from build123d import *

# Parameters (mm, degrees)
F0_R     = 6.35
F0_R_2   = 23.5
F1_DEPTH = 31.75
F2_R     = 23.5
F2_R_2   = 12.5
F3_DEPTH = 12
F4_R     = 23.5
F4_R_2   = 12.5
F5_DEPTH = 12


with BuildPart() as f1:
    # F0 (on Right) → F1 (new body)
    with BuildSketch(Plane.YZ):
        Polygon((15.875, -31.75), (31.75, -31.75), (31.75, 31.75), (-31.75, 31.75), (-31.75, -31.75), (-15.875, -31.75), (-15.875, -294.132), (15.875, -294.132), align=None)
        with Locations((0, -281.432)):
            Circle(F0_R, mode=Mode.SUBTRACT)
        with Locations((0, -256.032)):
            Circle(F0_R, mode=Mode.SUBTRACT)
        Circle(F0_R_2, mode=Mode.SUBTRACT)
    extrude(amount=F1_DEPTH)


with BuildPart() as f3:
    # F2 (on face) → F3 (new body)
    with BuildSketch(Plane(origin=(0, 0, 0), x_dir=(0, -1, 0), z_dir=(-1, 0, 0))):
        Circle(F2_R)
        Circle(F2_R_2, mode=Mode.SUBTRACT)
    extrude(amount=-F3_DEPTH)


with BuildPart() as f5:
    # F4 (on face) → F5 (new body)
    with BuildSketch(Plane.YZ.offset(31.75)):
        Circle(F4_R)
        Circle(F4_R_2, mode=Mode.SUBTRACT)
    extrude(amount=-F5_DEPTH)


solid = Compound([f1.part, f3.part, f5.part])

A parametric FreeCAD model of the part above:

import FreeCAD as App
import Part
import Sketcher
from FreeCAD import Vector
Q = App.Units.Quantity

doc = App.newDocument("Part")
body = doc.addObject("PartDesign::Body", "Body")

sketch1 = doc.addObject("Sketcher::SketchObject", "Sketch")
body.addObject(sketch1)
sketch1.AttachmentSupport = (doc.YZ_Plane, [""])
sketch1.MapMode = "FlatFace"
sketch1.addGeometry(Part.LineSegment(Vector(16, -32, 0), Vector(32, -32, 0)), False)
sketch1.addGeometry(Part.LineSegment(Vector(32, -32, 0), Vector(32, 32, 0)), False)
sketch1.addGeometry(Part.LineSegment(Vector(32, 32, 0), Vector(-32, 32, 0)), False)
sketch1.addGeometry(Part.LineSegment(Vector(-32, 32, 0), Vector(-32, -32, 0)), False)
sketch1.addGeometry(Part.LineSegment(Vector(-32, -32, 0), Vector(-16, -32, 0)), False)
sketch1.addGeometry(Part.LineSegment(Vector(-16, -32, 0), Vector(-16, -294, 0)), False)
sketch1.addGeometry(Part.LineSegment(Vector(-16, -294, 0), Vector(16, -294, 0)), False)
sketch1.addGeometry(Part.LineSegment(Vector(16, -294, 0), Vector(16, -32, 0)), False)
sketch1.addGeometry(Part.Circle(Vector(0, -281, 0), Vector(0, 0, 1), 6), False)
sketch1.addGeometry(Part.Circle(Vector(0, -256, 0), Vector(0, 0, 1), 6), False)
sketch1.addGeometry(Part.Circle(Vector(0, 0, 0), Vector(0, 0, 1), 24), False)
sketch1.addConstraint(Sketcher.Constraint("Coincident", 0, 2, 1, 1))
sketch1.addConstraint(Sketcher.Constraint("Coincident", 1, 2, 2, 1))
sketch1.addConstraint(Sketcher.Constraint("Coincident", 2, 2, 3, 1))
sketch1.addConstraint(Sketcher.Constraint("Coincident", 3, 2, 4, 1))
sketch1.addConstraint(Sketcher.Constraint("Coincident", 4, 2, 5, 1))
sketch1.addConstraint(Sketcher.Constraint("Coincident", 5, 2, 6, 1))
sketch1.addConstraint(Sketcher.Constraint("Coincident", 6, 2, 7, 1))
sketch1.addConstraint(Sketcher.Constraint("Coincident", 7, 2, 0, 1))
sketch1.addConstraint(Sketcher.Constraint("Horizontal", 0))
sketch1.addConstraint(Sketcher.Constraint("Vertical", 1))
sketch1.addConstraint(Sketcher.Constraint("Horizontal", 2))
sketch1.addConstraint(Sketcher.Constraint("Vertical", 3))
sketch1.addConstraint(Sketcher.Constraint("Horizontal", 4))
sketch1.addConstraint(Sketcher.Constraint("Vertical", 5))
sketch1.addConstraint(Sketcher.Constraint("Horizontal", 6))
sketch1.addConstraint(Sketcher.Constraint("Vertical", 7))
sketch1.addConstraint(Sketcher.Constraint("Coincident", 10, 3, -1, 1))
sketch1.addConstraint(Sketcher.Constraint("Equal", 8, 9))
sketch1.addConstraint(Sketcher.Constraint("Symmetric", 0, 2, 2, 2, -1, 1))
sketch1.addConstraint(Sketcher.Constraint("Symmetric", 4, 2, 7, 2, -2))
sketch1.addConstraint(Sketcher.Constraint("PointOnObject", 8, 3, -2))
sketch1.addConstraint(Sketcher.Constraint("PointOnObject", 9, 3, -2))
sketch1.addConstraint(Sketcher.Constraint("Equal", 2, 1))
sketch1.addConstraint(Sketcher.Constraint("Diameter", 8, Q("0.5 in")))
sketch1.addConstraint(Sketcher.Constraint("DistanceX", 2, 2, 2, 1, Q("2.5 in")))
sketch1.addConstraint(Sketcher.Constraint("DistanceY", 8, 3, 9, 3, Q("1 in")))
sketch1.addConstraint(Sketcher.Constraint("DistanceX", 6, 1, 6, 2, Q("1.25 in")))
sketch1.addConstraint(Sketcher.Constraint("DistanceY", 5, 2, 5, 1, Q("10.33 in")))
sketch1.addConstraint(Sketcher.Constraint("DistanceY", 5, 2, 8, 3, Q("0.5 in")))
sketch1.addConstraint(Sketcher.Constraint("Diameter", 10, Q("47 mm")))
pad1 = doc.addObject("PartDesign::Pad", "Pad")
body.addObject(pad1)
pad1.Profile = sketch1
pad1.Length = Q("1.25 in")
body2 = doc.addObject("PartDesign::Body", "Body001")

sketch2 = doc.addObject("Sketcher::SketchObject", "Sketch001")
body2.addObject(sketch2)
sketch2.AttachmentSupport = (doc.getObject("YZ_Plane001"), [""])
sketch2.MapMode = "FlatFace"
sketch2.addGeometry(Part.Circle(Vector(0, 0, 0), Vector(0, 0, 1), 24), False)
sketch2.addGeometry(Part.Circle(Vector(0, 0, 0), Vector(0, 0, 1), 12), False)
sketch2.addConstraint(Sketcher.Constraint("Coincident", 0, 3, -1, 1))
sketch2.addConstraint(Sketcher.Constraint("Coincident", 1, 3, -1, 1))
sketch2.addConstraint(Sketcher.Constraint("Diameter", 0, Q("47 mm")))
sketch2.addConstraint(Sketcher.Constraint("Diameter", 1, Q("25 mm")))
pad2 = doc.addObject("PartDesign::Pad", "Pad001")
body2.addObject(pad2)
pad2.Profile = sketch2
pad2.Length = 12
body3 = doc.addObject("PartDesign::Body", "Body002")

sketch3 = doc.addObject("Sketcher::SketchObject", "Sketch002")
body3.addObject(sketch3)
sketch3.AttachmentSupport = (doc.getObject("YZ_Plane002"), [""])
sketch3.MapMode = "FlatFace"
sketch3.AttachmentOffset = App.Placement(Vector(0, 0, 1.25 * 25.4), App.Rotation())
sketch3.addGeometry(Part.Circle(Vector(0, 0, 0), Vector(0, 0, 1), 24), False)
sketch3.addGeometry(Part.Circle(Vector(0, 0, 0), Vector(0, 0, 1), 12), False)
sketch3.addConstraint(Sketcher.Constraint("Coincident", 0, 3, -1, 1))
sketch3.addConstraint(Sketcher.Constraint("Coincident", 1, 3, -1, 1))
sketch3.addConstraint(Sketcher.Constraint("Diameter", 0, Q("47 mm")))
sketch3.addConstraint(Sketcher.Constraint("Diameter", 1, Q("25 mm")))
pad3 = doc.addObject("PartDesign::Pad", "Pad002")
body3.addObject(pad3)
pad3.Profile = sketch3
pad3.Length = 12
pad3.Reversed = True

doc.recompute()
